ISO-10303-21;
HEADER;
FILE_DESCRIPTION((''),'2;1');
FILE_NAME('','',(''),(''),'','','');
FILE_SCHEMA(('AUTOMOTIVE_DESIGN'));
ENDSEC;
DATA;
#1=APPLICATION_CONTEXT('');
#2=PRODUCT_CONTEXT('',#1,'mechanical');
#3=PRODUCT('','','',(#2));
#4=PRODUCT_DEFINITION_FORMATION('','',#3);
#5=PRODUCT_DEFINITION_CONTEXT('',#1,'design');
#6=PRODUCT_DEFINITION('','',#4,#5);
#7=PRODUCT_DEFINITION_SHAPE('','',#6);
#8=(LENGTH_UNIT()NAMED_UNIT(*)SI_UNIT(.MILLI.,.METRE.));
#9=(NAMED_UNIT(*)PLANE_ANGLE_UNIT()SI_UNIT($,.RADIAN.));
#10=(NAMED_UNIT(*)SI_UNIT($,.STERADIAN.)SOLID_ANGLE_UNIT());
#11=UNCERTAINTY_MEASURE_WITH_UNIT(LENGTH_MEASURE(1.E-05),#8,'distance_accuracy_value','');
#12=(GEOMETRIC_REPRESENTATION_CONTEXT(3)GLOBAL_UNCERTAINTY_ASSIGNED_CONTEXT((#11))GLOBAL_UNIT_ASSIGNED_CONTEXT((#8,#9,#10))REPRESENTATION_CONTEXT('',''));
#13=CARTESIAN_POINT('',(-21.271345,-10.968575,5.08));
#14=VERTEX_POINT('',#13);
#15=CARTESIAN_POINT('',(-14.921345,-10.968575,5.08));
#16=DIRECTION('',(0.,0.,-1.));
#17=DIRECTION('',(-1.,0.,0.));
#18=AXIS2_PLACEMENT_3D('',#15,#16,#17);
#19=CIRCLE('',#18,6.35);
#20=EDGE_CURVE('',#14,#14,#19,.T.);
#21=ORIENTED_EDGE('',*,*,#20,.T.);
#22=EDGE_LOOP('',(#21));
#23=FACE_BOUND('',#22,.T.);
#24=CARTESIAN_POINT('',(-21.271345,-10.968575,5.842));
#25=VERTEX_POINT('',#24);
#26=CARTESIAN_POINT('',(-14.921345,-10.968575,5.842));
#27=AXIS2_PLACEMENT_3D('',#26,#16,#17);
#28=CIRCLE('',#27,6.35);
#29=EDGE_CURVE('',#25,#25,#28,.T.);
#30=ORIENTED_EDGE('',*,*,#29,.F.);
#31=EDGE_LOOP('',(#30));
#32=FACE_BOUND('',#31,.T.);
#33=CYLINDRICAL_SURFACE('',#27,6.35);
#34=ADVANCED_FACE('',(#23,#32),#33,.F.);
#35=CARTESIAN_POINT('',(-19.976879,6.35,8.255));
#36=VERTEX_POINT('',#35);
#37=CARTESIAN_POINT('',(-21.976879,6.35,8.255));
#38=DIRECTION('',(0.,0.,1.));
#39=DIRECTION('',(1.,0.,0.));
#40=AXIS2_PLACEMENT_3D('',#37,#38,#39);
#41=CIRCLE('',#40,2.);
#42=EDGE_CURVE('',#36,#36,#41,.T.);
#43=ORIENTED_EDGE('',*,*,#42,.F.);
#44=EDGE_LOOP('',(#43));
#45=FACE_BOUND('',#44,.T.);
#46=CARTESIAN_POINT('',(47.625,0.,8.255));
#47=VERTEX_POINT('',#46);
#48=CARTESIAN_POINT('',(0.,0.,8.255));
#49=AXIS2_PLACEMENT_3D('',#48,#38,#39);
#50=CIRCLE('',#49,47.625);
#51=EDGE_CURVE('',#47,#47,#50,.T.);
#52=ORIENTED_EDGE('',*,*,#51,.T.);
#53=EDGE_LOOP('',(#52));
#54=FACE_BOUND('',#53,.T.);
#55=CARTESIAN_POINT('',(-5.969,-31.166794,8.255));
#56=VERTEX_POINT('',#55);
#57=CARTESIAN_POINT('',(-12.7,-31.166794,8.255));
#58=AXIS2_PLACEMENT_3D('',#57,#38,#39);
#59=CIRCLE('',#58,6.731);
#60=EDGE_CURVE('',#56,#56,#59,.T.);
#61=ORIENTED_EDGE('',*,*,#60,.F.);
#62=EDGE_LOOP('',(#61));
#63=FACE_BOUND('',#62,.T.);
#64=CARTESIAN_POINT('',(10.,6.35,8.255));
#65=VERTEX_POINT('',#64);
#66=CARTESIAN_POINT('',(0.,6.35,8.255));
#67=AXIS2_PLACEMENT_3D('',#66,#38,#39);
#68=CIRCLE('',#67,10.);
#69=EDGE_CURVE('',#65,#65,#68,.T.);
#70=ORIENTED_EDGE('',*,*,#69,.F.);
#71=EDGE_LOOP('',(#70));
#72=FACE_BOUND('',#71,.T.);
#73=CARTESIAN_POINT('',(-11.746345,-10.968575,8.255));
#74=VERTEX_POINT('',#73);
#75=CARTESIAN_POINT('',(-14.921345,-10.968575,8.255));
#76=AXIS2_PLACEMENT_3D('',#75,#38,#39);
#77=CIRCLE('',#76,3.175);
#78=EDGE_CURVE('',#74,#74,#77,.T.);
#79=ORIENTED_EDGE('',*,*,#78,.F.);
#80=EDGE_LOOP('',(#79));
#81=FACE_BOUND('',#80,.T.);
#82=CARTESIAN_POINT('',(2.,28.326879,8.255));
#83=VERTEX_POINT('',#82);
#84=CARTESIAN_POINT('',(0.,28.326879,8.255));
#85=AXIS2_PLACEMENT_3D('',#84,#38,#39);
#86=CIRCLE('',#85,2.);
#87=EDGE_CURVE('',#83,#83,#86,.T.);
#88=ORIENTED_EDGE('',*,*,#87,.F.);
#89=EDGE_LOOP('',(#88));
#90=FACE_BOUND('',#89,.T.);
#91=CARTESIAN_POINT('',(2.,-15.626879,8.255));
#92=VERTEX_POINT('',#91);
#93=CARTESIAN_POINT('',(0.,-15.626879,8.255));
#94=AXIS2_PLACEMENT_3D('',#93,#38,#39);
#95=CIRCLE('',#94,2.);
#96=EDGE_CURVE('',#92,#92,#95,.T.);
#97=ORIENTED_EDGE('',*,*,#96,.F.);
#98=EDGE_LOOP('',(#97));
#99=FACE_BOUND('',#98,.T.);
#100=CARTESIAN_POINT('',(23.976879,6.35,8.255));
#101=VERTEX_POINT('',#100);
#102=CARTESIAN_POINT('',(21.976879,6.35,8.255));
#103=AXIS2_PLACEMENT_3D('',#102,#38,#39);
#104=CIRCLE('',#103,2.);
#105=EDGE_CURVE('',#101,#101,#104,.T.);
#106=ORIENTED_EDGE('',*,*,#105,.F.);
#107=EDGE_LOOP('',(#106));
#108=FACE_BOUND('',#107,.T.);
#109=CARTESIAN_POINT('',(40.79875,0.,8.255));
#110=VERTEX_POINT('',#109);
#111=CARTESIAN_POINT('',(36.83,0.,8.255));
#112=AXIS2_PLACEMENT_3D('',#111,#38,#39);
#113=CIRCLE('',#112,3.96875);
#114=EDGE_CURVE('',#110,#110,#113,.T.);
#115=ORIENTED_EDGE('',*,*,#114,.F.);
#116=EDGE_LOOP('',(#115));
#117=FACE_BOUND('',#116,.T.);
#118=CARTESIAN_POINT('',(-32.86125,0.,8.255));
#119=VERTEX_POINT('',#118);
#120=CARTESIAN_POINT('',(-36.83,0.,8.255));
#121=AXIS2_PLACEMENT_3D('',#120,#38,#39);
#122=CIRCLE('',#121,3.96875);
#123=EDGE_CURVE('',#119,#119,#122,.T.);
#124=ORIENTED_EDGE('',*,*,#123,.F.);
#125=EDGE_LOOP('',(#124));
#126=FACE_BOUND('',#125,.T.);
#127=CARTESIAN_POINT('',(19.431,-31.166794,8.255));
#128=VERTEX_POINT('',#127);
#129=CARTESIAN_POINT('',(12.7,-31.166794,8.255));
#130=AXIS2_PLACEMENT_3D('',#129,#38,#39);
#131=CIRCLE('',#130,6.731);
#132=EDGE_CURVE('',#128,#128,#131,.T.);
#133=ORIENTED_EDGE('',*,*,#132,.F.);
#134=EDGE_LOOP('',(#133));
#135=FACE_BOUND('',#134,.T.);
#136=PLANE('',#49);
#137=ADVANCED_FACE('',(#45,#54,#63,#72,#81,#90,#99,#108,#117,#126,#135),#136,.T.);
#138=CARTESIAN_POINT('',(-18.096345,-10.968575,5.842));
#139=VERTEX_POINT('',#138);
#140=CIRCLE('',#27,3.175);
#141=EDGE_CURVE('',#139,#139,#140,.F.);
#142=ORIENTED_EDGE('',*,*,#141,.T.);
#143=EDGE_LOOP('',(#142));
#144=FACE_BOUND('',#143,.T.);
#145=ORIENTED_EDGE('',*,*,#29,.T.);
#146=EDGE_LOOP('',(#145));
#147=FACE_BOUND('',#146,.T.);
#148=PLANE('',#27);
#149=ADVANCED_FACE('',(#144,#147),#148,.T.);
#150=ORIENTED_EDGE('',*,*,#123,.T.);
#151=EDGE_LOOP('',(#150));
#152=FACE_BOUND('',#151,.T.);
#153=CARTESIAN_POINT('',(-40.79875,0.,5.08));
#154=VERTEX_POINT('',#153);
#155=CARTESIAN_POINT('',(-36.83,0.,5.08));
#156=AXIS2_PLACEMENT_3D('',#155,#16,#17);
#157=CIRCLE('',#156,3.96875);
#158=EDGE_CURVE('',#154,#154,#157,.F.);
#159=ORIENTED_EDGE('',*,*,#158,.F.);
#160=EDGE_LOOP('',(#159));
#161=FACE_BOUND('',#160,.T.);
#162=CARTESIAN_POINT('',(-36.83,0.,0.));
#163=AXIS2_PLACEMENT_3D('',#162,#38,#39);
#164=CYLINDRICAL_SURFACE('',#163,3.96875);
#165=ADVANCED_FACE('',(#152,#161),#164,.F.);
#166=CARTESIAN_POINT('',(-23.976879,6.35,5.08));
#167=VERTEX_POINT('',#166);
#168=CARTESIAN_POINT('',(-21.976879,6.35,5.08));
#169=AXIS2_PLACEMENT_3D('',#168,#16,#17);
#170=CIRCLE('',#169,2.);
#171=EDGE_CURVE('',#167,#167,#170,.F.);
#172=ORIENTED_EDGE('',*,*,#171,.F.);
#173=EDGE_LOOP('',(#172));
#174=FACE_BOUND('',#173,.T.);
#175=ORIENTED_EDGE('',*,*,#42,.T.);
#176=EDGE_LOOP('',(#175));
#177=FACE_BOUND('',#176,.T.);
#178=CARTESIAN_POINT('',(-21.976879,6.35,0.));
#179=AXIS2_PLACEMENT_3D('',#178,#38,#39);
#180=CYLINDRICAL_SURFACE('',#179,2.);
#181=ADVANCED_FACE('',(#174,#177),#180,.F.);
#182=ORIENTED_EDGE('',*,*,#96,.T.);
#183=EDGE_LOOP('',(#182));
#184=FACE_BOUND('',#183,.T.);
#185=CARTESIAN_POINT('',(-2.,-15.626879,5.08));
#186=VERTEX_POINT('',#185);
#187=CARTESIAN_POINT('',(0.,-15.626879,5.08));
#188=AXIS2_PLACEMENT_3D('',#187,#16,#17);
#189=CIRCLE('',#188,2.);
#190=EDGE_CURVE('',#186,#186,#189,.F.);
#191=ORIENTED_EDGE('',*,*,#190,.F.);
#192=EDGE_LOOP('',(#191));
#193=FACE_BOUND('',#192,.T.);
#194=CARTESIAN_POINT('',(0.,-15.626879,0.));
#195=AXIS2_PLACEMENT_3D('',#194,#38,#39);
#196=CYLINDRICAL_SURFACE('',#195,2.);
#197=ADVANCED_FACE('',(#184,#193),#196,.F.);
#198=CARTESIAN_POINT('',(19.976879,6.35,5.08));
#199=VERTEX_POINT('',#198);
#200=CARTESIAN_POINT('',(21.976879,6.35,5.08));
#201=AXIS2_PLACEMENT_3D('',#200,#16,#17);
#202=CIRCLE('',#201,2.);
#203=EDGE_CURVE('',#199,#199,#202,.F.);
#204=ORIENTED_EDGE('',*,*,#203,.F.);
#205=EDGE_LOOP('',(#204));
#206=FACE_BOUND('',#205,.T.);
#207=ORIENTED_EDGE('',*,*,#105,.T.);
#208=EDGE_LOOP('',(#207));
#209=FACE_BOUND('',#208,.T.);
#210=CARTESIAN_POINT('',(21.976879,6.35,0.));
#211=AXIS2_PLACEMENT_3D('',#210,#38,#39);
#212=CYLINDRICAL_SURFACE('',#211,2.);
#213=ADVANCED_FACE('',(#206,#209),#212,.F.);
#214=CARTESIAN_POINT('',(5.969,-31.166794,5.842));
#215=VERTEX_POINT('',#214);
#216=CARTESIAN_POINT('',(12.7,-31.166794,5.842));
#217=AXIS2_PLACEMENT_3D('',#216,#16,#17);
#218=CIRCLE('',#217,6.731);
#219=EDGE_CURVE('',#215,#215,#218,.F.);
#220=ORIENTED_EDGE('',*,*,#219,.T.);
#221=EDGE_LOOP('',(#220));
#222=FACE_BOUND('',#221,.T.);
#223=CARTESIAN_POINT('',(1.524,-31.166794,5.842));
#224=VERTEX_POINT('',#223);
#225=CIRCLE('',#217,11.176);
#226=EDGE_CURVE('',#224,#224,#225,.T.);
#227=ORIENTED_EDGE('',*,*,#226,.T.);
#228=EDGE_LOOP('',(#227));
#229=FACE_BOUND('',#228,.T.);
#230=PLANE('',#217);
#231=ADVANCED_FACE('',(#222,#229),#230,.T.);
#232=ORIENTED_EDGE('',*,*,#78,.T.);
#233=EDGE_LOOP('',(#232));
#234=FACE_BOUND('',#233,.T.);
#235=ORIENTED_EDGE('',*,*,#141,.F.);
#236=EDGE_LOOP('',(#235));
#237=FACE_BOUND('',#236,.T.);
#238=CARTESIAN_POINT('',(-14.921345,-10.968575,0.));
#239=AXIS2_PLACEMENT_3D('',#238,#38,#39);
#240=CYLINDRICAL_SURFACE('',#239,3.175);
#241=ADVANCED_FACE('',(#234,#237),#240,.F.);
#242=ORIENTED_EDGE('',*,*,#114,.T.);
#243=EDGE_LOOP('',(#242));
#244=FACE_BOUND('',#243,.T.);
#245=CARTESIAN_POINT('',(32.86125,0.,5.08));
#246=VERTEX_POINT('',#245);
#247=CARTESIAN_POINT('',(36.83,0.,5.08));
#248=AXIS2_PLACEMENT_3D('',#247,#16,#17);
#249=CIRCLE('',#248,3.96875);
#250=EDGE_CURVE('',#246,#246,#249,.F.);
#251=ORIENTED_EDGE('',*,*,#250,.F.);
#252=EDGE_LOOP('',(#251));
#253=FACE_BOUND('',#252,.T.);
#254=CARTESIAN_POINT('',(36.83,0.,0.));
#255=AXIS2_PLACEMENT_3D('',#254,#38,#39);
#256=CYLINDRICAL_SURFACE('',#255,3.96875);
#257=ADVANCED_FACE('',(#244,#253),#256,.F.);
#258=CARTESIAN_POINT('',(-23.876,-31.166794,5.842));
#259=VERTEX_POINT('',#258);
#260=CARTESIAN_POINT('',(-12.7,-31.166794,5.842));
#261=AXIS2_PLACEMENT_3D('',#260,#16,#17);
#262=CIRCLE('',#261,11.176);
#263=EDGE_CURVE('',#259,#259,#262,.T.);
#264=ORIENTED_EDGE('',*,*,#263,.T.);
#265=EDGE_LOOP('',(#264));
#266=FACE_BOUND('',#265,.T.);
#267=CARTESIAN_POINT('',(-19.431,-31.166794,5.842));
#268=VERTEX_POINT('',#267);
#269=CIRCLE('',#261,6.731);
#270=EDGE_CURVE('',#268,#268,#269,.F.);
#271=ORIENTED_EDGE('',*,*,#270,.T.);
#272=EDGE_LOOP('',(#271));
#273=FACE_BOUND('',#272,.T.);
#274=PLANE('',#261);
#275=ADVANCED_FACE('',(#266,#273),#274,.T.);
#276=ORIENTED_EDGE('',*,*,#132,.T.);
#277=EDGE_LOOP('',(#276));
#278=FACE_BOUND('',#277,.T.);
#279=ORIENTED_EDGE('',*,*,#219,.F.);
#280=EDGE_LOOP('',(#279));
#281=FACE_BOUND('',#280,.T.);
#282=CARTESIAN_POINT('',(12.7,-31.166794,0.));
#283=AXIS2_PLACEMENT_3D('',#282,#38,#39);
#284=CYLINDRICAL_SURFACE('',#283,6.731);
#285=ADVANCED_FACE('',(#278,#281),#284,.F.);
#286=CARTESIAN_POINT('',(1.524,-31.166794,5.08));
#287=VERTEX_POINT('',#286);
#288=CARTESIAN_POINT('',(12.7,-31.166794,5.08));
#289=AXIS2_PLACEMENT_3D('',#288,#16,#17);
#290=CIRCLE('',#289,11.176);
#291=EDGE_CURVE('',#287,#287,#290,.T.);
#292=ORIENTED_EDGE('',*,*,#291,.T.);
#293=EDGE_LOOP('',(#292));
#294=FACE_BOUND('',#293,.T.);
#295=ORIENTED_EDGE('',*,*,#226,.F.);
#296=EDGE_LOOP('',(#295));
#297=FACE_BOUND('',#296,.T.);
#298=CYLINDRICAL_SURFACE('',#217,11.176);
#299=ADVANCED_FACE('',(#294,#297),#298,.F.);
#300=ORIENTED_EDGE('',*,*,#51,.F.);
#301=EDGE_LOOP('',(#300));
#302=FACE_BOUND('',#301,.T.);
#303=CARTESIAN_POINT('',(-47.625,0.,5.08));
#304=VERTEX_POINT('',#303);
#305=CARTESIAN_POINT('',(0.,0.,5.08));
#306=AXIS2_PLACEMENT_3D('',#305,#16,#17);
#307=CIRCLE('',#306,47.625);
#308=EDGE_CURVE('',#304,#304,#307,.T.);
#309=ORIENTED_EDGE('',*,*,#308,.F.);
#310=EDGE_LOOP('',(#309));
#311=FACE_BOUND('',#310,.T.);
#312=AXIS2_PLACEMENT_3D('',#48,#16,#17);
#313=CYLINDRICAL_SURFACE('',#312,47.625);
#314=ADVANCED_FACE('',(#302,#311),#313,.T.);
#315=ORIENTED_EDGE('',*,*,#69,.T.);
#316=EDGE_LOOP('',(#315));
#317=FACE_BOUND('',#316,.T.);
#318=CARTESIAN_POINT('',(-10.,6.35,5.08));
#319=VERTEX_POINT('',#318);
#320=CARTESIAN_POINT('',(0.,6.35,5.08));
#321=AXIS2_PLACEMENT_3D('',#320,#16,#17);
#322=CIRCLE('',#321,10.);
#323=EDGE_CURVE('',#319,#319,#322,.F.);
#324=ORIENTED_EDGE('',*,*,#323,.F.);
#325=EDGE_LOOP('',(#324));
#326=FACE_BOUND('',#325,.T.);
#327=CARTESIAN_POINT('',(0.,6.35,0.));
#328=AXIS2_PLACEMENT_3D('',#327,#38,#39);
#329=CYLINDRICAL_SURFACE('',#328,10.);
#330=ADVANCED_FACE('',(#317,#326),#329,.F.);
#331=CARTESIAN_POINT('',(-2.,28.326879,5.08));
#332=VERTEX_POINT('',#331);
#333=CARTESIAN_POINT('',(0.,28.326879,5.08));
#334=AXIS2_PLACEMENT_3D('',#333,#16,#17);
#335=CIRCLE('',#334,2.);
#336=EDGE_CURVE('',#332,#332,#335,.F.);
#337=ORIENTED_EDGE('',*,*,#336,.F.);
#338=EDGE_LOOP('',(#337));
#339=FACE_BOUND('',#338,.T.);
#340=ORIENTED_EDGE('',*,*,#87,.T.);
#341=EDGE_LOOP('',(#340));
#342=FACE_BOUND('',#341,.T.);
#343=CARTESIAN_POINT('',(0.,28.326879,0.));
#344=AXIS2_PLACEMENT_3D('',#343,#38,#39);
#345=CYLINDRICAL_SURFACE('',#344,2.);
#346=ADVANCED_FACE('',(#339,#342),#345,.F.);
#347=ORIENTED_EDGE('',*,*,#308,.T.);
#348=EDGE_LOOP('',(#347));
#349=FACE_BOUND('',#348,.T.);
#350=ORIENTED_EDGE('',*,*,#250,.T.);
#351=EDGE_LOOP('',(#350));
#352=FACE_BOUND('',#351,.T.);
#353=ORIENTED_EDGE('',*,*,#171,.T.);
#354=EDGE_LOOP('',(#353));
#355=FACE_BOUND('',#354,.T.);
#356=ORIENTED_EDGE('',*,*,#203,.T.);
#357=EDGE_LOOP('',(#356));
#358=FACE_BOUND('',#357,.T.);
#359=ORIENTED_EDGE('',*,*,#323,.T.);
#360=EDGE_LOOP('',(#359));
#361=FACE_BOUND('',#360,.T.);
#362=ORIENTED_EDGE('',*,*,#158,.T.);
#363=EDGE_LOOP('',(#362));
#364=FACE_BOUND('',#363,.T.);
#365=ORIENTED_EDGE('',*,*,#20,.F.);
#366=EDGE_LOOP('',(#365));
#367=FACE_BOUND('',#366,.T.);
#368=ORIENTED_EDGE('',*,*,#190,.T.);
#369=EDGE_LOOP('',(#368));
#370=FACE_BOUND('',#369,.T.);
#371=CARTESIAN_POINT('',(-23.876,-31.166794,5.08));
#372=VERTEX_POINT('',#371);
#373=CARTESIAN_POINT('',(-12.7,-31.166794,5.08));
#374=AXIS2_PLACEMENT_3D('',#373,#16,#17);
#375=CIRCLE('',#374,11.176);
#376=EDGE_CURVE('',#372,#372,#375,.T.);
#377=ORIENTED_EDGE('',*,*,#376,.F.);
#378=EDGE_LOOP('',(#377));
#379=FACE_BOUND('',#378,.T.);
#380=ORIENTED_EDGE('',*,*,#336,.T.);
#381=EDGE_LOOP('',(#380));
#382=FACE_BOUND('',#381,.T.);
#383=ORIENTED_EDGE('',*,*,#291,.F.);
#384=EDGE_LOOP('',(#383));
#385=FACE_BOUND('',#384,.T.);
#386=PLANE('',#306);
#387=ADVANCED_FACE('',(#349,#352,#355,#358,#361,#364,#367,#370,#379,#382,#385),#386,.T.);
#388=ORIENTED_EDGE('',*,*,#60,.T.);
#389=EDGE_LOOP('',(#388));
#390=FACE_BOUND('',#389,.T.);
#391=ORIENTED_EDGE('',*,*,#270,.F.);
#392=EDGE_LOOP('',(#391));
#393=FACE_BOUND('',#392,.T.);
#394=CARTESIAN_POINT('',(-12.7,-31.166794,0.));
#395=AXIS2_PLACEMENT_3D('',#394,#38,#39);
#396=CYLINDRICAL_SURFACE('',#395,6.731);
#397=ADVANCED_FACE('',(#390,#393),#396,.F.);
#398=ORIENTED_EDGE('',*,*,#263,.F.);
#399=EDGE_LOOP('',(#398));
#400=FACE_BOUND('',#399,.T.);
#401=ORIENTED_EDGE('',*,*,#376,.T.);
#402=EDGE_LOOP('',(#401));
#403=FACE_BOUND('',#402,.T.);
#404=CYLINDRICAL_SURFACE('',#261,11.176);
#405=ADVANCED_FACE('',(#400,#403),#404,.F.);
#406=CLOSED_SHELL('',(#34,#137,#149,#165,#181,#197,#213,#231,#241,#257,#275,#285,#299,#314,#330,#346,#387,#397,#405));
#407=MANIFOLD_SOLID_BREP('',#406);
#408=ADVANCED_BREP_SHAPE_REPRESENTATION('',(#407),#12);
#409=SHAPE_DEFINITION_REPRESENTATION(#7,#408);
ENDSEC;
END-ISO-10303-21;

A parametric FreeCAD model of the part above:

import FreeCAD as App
import Part
import Sketcher
Q = App.Units.Quantity

doc = App.newDocument("Part")
body = doc.addObject("PartDesign::Body", "Body")

# Sketch on XY plane
sketch1 = doc.addObject("Sketcher::SketchObject", "Sketch")
body.addObject(sketch1)
sketch1.AttachmentSupport = (doc.XY_Plane, [""])
sketch1.MapMode = "FlatFace"
sketch1.addGeometry(Part.Circle(App.Vector(0, 0, 0), App.Vector(0, 0, 1), 50), False)
sketch1.addConstraint(Sketcher.Constraint("Coincident", 0, 3, -1, 1))
sketch1.addConstraint(Sketcher.Constraint("Diameter", 0, Q("3.898 in")))
pad1 = doc.addObject("PartDesign::Pad", "Pad")
body.addObject(pad1)
pad1.Profile = sketch1
pad1.Length = Q("0.2 in")

# Sketch on XY plane
sketch2 = doc.addObject("Sketcher::SketchObject", "Sketch001")
body.addObject(sketch2)
sketch2.AttachmentSupport = (doc.XY_Plane, [""])
sketch2.MapMode = "FlatFace"
sketch2.AttachmentOffset = App.Placement(App.Vector(0, 0, 0.2 * 25.4), App.Rotation())
sketch2.addGeometry(Part.Circle(App.Vector(0, 0, 0), App.Vector(0, 0, 1), 48), False)
sketch2.addConstraint(Sketcher.Constraint("Coincident", 0, 3, -1, 1))
sketch2.addConstraint(Sketcher.Constraint("Diameter", 0, Q("3.75 in")))
pad2 = doc.addObject("PartDesign::Pad", "Pad001")
body.addObject(pad2)
pad2.Profile = sketch2
pad2.Length = Q("0.125 in")

# Sketch on XY plane
sketch3 = doc.addObject("Sketcher::SketchObject", "Sketch002")
body.addObject(sketch3)
sketch3.AttachmentSupport = (doc.XY_Plane, [""])
sketch3.MapMode = "FlatFace"
sketch3.AttachmentOffset = App.Placement(App.Vector(0, 0, 0.325 * 25.4), App.Rotation())
sketch3.addGeometry(Part.Circle(App.Vector(-12.7, -31.2, 0), App.Vector(0, 0, 1), 6.7), False)
sketch3.addGeometry(Part.Circle(App.Vector(12.7, -31.2, 0), App.Vector(0, 0, 1), 6.7), False)
sketch3.addGeometry(Part.Circle(App.Vector(-36.8, 0, 0), App.Vector(0, 0, 1), 4), False)
sketch3.addGeometry(Part.Circle(App.Vector(36.8, 0, 0), App.Vector(0, 0, 1), 4), False)
sketch3.addGeometry(Part.Circle(App.Vector(0, 6.3, 0), App.Vector(0, 0, 1), 10), False)
sketch3.addGeometry(Part.Circle(App.Vector(0, 28.3, 0), App.Vector(0, 0, 1), 2), False)
sketch3.addGeometry(Part.Circle(App.Vector(22, 6.3, 0), App.Vector(0, 0, 1), 2), False)
sketch3.addGeometry(Part.Circle(App.Vector(0, -15.6, 0), App.Vector(0, 0, 1), 2), False)
sketch3.addGeometry(Part.Circle(App.Vector(-22, 6.3, 0), App.Vector(0, 0, 1), 2), False)
sketch3.addGeometry(Part.Circle(App.Vector(-14.9, -11, 0), App.Vector(0, 0, 1), 3.2), False)
sketch3.addConstraint(Sketcher.Constraint("Equal", 0, 1))
sketch3.addConstraint(Sketcher.Constraint("Equal", 2, 3))
sketch3.addConstraint(Sketcher.Constraint("Equal", 5, 6))
sketch3.addConstraint(Sketcher.Constraint("Equal", 6, 7))
sketch3.addConstraint(Sketcher.Constraint("Equal", 7, 8))
sketch3.addConstraint(Sketcher.Constraint("Symmetric", 2, 3, 3, 3, -1, 1))
sketch3.addConstraint(Sketcher.Constraint("Symmetric", 0, 3, 1, 3, -2))
sketch3.addConstraint(Sketcher.Constraint("Symmetric", 6, 3, 8, 3, -2))
sketch3.addConstraint(Sketcher.Constraint("PointOnObject", 2, 3, -1))
sketch3.addConstraint(Sketcher.Constraint("PointOnObject", 4, 3, -2))
sketch3.addConstraint(Sketcher.Constraint("PointOnObject", 5, 3, -2))
sketch3.addConstraint(Sketcher.Constraint("PointOnObject", 7, 3, -2))
sketch3.addConstraint(Sketcher.Constraint("Horizontal", 4, 3, 6, 3))
sketch3.addConstraint(Sketcher.Constraint("Diameter", 0, Q("0.53 in")))
sketch3.addConstraint(Sketcher.Constraint("Diameter", 9, Q("0.25 in")))
sketch3.addConstraint(Sketcher.Constraint("Diameter", 2, Q("0.3125 in")))
sketch3.addConstraint(Sketcher.Constraint("DistanceX", 0, 3, 1, 3, Q("1 in")))
sketch3.addConstraint(Sketcher.Constraint("DistanceX", 2, 3, 3, 3, Q("2.9 in")))
sketch3.addConstraint(Sketcher.Constraint("Diameter", 4, 20.0))
sketch3.addConstraint(Sketcher.Constraint("Diameter", 5, 4.0))
sketch3.addConstraint(Sketcher.Constraint("DistanceY", -1, 1, 4, 3, Q("0.25 in")))
sketch3.addConstraint(Sketcher.Constraint("DistanceY", -1, 1, 5, 3, 28.326879))
sketch3.addConstraint(Sketcher.Constraint("DistanceX", -1, 1, 6, 3, 21.976879))
sketch3.addConstraint(Sketcher.Constraint("DistanceY", 7, 3, -1, 1, 15.626879))
sketch3.addConstraint(Sketcher.Constraint("DistanceY", 0, 3, 9, 3, 20.198218))
sketch3.addConstraint(Sketcher.Constraint("DistanceY", 0, 3, -1, 1, 31.166794))
sketch3.addConstraint(Sketcher.Constraint("DistanceX", 9, 3, -1, 1, 14.921345))
pocket1 = doc.addObject("PartDesign::Pocket", "Pocket")
body.addObject(pocket1)
pocket1.Profile = sketch3
pocket1.Type = "ThroughAll"

# Sketch on XY plane
sketch4 = doc.addObject("Sketcher::SketchObject", "Sketch003")
body.addObject(sketch4)
sketch4.AttachmentSupport = (doc.XY_Plane, [""])
sketch4.MapMode = "FlatFace"
sketch4.addGeometry(Part.Circle(App.Vector(0, 0, 0), App.Vector(0, 0, 1), 52), False)
sketch4.addConstraint(Sketcher.Constraint("Coincident", 0, 3, -1, 1))
sketch4.addConstraint(Sketcher.Constraint("Diameter", 0, 104.332549))
pocket2 = doc.addObject("PartDesign::Pocket", "Pocket001")
body.addObject(pocket2)
pocket2.Profile = sketch4
pocket2.Length = Q("0.2 in")
pocket2.Reversed = True

# Sketch on XY plane
sketch5 = doc.addObject("Sketcher::SketchObject", "Sketch004")
body.addObject(sketch5)
sketch5.AttachmentSupport = (doc.XY_Plane, [""])
sketch5.MapMode = "FlatFace"
sketch5.AttachmentOffset = App.Placement(App.Vector(0, 0, 0.2 * 25.4), App.Rotation())
sketch5.addGeometry(Part.Circle(App.Vector(13, -31, 0), App.Vector(0, 0, 1), 11), False)
sketch5.addGeometry(Part.Circle(App.Vector(-13, -31, 0), App.Vector(0, 0, 1), 11), False)
sketch5.addGeometry(Part.Circle(App.Vector(-15, -11, 0), App.Vector(0, 0, 1), 6), False)
sketch5.addConstraint(Sketcher.Constraint("Equal", 0, 1))
sketch5.addConstraint(Sketcher.Constraint("Symmetric", 0, 3, 1, 3, -2))
sketch5.addConstraint(Sketcher.Constraint("Diameter", 2, Q("0.5 in")))
sketch5.addConstraint(Sketcher.Constraint("Diameter", 0, Q("0.88 in")))
sketch5.addConstraint(Sketcher.Constraint("DistanceX", 1, 3, 0, 3, Q("1 in")))
sketch5.addConstraint(Sketcher.Constraint("DistanceY", 1, 3, 2, 3, 20.198218))
sketch5.addConstraint(Sketcher.Constraint("DistanceY", 0, 3, -1, 1, 31.166794))
sketch5.addConstraint(Sketcher.Constraint("DistanceX", 2, 3, -1, 1, 14.921345))
pocket3 = doc.addObject("PartDesign::Pocket", "Pocket002")
body.addObject(pocket3)
pocket3.Profile = sketch5
pocket3.Length = Q("0.03 in")
pocket3.Reversed = True

doc.recompute()
